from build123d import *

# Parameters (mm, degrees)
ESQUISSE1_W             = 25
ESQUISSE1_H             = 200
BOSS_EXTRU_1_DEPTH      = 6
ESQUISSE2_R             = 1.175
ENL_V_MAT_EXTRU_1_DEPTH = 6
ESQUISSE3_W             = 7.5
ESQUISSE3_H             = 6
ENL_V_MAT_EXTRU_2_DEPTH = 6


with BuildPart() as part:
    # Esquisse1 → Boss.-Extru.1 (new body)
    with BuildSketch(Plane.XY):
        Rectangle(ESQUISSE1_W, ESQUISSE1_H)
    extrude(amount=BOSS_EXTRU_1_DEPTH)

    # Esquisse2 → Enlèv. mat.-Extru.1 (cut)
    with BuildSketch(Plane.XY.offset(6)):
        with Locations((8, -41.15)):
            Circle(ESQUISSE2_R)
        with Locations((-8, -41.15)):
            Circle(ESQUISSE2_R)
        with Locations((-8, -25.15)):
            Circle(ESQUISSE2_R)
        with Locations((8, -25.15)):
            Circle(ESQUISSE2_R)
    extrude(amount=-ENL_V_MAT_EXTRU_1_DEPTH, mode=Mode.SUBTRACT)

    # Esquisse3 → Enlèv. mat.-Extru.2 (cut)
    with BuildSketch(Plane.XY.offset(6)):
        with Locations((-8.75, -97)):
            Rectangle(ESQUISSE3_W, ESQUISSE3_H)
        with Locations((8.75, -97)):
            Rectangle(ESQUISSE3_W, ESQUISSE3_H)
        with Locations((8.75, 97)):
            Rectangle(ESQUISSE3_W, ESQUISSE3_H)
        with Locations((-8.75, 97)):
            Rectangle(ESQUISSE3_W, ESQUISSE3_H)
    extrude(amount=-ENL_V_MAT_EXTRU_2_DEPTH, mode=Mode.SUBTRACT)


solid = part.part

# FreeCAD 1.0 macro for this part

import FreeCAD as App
import Part
import Sketcher

V = App.Vector

doc = App.newDocument("Part")
body = doc.addObject("PartDesign::Body", "Body")

sketch1 = body.newObject("Sketcher::SketchObject", "Sketch")
sketch1.AttachmentSupport = (doc.getObject("XY_Plane"), [""])
sketch1.MapMode = "FlatFace"
sketch1.addGeometry([
    Part.LineSegment(V(-12, 100, 0), V(-12, -100, 0)),
    Part.LineSegment(V(-12, -100, 0), V(12, -100, 0)),
    Part.LineSegment(V(12, -100, 0), V(12, 100, 0)),
    Part.LineSegment(V(12, 100, 0), V(-12, 100, 0)),
], False)
sketch1.addConstraint([
    Sketcher.Constraint("Coincident", 0, 2, 1, 1),
    Sketcher.Constraint("Coincident", 1, 2, 2, 1),
    Sketcher.Constraint("Coincident", 2, 2, 3, 1),
    Sketcher.Constraint("Coincident", 3, 2, 0, 1),
    Sketcher.Constraint("Vertical", 0),
    Sketcher.Constraint("Horizontal", 1),
    Sketcher.Constraint("Vertical", 2),
    Sketcher.Constraint("Horizontal", 3),
    Sketcher.Constraint("Symmetric", 0, 2, 2, 2, -1, 1),
    Sketcher.Constraint("DistanceX", 1, 1, 1, 2, 25.0),
    Sketcher.Constraint("DistanceY", 0, 2, 0, 1, 200.0),
])
pad1 = body.newObject("PartDesign::Pad", "Pad")
pad1.Profile = sketch1
pad1.Length = 6

sketch2 = body.newObject("Sketcher::SketchObject", "Sketch001")
sketch2.AttachmentSupport = (doc.getObject("XY_Plane"), [""])
sketch2.MapMode = "FlatFace"
sketch2.AttachmentOffset = App.Placement(V(0, 0, 6), App.Rotation())
sketch2.addGeometry([
    Part.Circle(V(8, -41.1, 0), V(0, 0, 1), 1.2),
    Part.Circle(V(-8, -41.1, 0), V(0, 0, 1), 1.2),
    Part.Circle(V(-8, -25.1, 0), V(0, 0, 1), 1.2),
    Part.Circle(V(8, -25.1, 0), V(0, 0, 1), 1.2),
], False)
sketch2.addConstraint([
    Sketcher.Constraint("Equal", 0, 1),
    Sketcher.Constraint("Equal", 1, 2),
    Sketcher.Constraint("Equal", 2, 3),
    Sketcher.Constraint("Symmetric", 0, 3, 1, 3, -2),
    Sketcher.Constraint("Symmetric", 2, 3, 3, 3, -2),
    Sketcher.Constraint("Vertical", 1, 3, 2, 3),
    Sketcher.Constraint("Diameter", 0, 2.35),
    Sketcher.Constraint("DistanceX", -1, 1, 0, 3, 8.0),
    Sketcher.Constraint("DistanceY", 1, 3, 2, 3, 16.0),
    Sketcher.Constraint("DistanceY", 0, 3, -1, 1, 41.15),
])
pocket1 = body.newObject("PartDesign::Pocket", "Pocket")
pocket1.Profile = sketch2
pocket1.Length = 6

sketch3 = body.newObject("Sketcher::SketchObject", "Sketch002")
sketch3.AttachmentSupport = (doc.getObject("XY_Plane"), [""])
sketch3.MapMode = "FlatFace"
sketch3.AttachmentOffset = App.Placement(V(0, 0, 6), App.Rotation())
sketch3.addGeometry([
    Part.LineSegment(V(-12, -94, 0), V(-12, -100, 0)),
    Part.LineSegment(V(-12, -100, 0), V(-5, -100, 0)),
    Part.LineSegment(V(-5, -100, 0), V(-5, -94, 0)),
    Part.LineSegment(V(-5, -94, 0), V(-12, -94, 0)),
    Part.LineSegment(V(5, -94, 0), V(5, -100, 0)),
    Part.LineSegment(V(5, -100, 0), V(12, -100, 0)),
    Part.LineSegment(V(12, -100, 0), V(12, -94, 0)),
    Part.LineSegment(V(12, -94, 0), V(5, -94, 0)),
    Part.LineSegment(V(5, 100, 0), V(5, 94, 0)),
    Part.LineSegment(V(5, 94, 0), V(12, 94, 0)),
    Part.LineSegment(V(12, 94, 0), V(12, 100, 0)),
    Part.LineSegment(V(12, 100, 0), V(5, 100, 0)),
    Part.LineSegment(V(-12, 100, 0), V(-12, 94, 0)),
    Part.LineSegment(V(-12, 94, 0), V(-5, 94, 0)),
    Part.LineSegment(V(-5, 94, 0), V(-5, 100, 0)),
    Part.LineSegment(V(-5, 100, 0), V(-12, 100, 0)),
], False)
sketch3.addConstraint([
    Sketcher.Constraint("Coincident", 0, 2, 1, 1),
    Sketcher.Constraint("Coincident", 1, 2, 2, 1),
    Sketcher.Constraint("Coincident", 2, 2, 3, 1),
    Sketcher.Constraint("Coincident", 3, 2, 0, 1),
    Sketcher.Constraint("Coincident", 4, 2, 5, 1),
    Sketcher.Constraint("Coincident", 5, 2, 6, 1),
    Sketcher.Constraint("Coincident", 6, 2, 7, 1),
    Sketcher.Constraint("Coincident", 7, 2, 4, 1),
    Sketcher.Constraint("Coincident", 8, 2, 9, 1),
    Sketcher.Constraint("Coincident", 9, 2, 10, 1),
    Sketcher.Constraint("Coincident", 10, 2, 11, 1),
    Sketcher.Constraint("Coincident", 11, 2, 8, 1),
    Sketcher.Constraint("Coincident", 12, 2, 13, 1),
    Sketcher.Constraint("Coincident", 13, 2, 14, 1),
    Sketcher.Constraint("Coincident", 14, 2, 15, 1),
    Sketcher.Constraint("Coincident", 15, 2, 12, 1),
    Sketcher.Constraint("Vertical", 0),
    Sketcher.Constraint("Horizontal", 1),
    Sketcher.Constraint("Vertical", 2),
    Sketcher.Constraint("Horizontal", 3),
    Sketcher.Constraint("Vertical", 4),
    Sketcher.Constraint("Horizontal", 5),
    Sketcher.Constraint("Vertical", 6),
    Sketcher.Constraint("Horizontal", 7),
    Sketcher.Constraint("Vertical", 8),
    Sketcher.Constraint("Horizontal", 9),
    Sketcher.Constraint("Vertical", 10),
    Sketcher.Constraint("Horizontal", 11),
    Sketcher.Constraint("Vertical", 12),
    Sketcher.Constraint("Horizontal", 13),
    Sketcher.Constraint("Vertical", 14),
    Sketcher.Constraint("Horizontal", 15),
    Sketcher.Constraint("Symmetric", 2, 2, 8, 2, -1, 1),
    Sketcher.Constraint("Symmetric", 0, 2, 10, 2, -1, 1),
    Sketcher.Constraint("Symmetric", 6, 2, 12, 2, -1, 1),
    Sketcher.Constraint("Symmetric", 4, 2, 14, 2, -1, 1),
    Sketcher.Constraint("Symmetric", 1, 2, 4, 2, -2),
    Sketcher.Constraint("Symmetric", 3, 2, 6, 2, -2),
    Sketcher.Constraint("DistanceY", 0, 2, 0, 1, 6.0),
    Sketcher.Constraint("DistanceX", 1, 1, 1, 2, 7.5),
    Sketcher.Constraint("DistanceY", 0, 2, -1, 1, 100.0),
    Sketcher.Constraint("DistanceX", 1, 2, -1, 1, 5.0),
])
pocket2 = body.newObject("PartDesign::Pocket", "Pocket001")
pocket2.Profile = sketch3
pocket2.Length = 6

doc.recompute()
